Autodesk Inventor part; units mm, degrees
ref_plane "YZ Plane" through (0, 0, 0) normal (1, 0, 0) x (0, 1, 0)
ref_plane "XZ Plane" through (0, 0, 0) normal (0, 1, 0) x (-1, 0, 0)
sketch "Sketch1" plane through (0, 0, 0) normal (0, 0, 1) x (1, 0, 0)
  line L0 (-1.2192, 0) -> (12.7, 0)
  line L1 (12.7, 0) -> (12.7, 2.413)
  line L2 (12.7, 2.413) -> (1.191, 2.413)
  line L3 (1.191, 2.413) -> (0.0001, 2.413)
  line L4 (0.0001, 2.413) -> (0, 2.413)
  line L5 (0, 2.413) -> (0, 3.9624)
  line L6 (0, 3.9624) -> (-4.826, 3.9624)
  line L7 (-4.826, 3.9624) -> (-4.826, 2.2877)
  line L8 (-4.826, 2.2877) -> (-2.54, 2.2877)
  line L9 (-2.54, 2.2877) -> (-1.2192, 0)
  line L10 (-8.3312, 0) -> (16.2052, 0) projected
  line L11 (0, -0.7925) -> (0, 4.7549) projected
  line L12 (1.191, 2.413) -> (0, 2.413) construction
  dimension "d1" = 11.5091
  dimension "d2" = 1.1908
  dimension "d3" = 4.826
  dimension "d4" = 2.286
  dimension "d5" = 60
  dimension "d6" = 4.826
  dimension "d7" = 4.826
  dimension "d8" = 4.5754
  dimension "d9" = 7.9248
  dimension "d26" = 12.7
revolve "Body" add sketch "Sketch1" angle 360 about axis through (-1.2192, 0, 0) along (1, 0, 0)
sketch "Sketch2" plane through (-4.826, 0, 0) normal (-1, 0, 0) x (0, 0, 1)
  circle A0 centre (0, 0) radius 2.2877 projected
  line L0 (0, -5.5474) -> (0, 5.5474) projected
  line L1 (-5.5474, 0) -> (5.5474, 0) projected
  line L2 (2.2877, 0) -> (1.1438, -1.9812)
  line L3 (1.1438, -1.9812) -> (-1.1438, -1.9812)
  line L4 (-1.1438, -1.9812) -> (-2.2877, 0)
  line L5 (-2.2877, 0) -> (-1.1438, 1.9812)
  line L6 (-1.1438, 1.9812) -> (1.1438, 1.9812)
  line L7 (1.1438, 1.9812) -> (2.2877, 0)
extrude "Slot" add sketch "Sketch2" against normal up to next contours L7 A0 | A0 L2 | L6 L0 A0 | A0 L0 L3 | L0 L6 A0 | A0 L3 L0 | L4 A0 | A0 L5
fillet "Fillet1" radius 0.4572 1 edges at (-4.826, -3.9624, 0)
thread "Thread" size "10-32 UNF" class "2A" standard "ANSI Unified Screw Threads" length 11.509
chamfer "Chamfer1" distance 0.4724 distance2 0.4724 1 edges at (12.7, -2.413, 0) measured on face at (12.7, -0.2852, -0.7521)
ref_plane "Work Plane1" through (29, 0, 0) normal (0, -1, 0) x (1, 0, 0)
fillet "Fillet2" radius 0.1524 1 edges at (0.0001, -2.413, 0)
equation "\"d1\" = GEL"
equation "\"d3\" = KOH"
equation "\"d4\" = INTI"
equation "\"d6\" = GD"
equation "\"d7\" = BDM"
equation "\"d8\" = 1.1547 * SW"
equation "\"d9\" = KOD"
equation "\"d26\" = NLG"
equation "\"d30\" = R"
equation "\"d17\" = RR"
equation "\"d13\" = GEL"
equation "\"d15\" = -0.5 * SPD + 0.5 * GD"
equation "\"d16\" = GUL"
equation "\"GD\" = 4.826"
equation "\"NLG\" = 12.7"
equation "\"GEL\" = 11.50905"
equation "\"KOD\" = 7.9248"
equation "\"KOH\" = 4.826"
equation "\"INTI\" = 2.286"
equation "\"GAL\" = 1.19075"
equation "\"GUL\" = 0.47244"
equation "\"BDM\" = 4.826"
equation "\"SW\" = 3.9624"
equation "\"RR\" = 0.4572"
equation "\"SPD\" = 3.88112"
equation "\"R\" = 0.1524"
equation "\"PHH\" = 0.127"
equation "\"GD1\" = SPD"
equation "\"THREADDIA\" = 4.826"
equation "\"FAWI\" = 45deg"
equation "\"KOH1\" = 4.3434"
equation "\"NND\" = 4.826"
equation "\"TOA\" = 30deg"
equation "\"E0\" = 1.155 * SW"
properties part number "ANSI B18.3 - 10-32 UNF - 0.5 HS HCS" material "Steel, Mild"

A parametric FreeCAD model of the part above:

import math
import FreeCAD as App
import Part
import Sketcher

V = App.Vector
Q = App.Units.Quantity


def edges_at(feature, points):
    """Names of the edges that pass closest to the given points."""
    edges = feature.Shape.Edges
    near = lambda p: min(range(len(edges)), key=lambda i: edges[i].distToShape(Part.Vertex(*p))[0])
    return sorted({f"Edge{near(p) + 1}" for p in points})


def add_polygon(sketch, points):
    """Adds a closed chain of lines whose ends are joined by coincident constraints."""
    first, n = sketch.GeometryCount, len(points)
    for a, b in zip(points, points[1:] + points[:1]):
        sketch.addGeometry(Part.LineSegment(App.Vector(*a, 0), App.Vector(*b, 0)), False)
    for i in range(n):
        sketch.addConstraint(Sketcher.Constraint("Coincident", first + i, 2, first + (i + 1) % n, 1))

doc = App.newDocument("Part")
params = doc.addObject("Spreadsheet::Sheet", "Params")
for row, (alias, value) in enumerate([
    ("sketch1_width", "0.5 in"),
    ("sketch1_width2", "0.19 in"),
    ("sketch1_width3", "0.09 in"),
    ("sketch1_width4", "0.548 in"),
    ("sketch1_height", "0.095 in"),
    ("revolution_angle", "360 deg"),
    ("pad1_length", "2.463 mm"),
    ("fillet_radius", "0.018 in"),
    ("chamfer_size", "0.0185984 in"),
    ("chamfer_size2", "0.0185984 in"),
    ("fillet2_radius", "0.006 in"),
], start=1):
    params.set(f"A{row}", alias)
    params.set(f"B{row}", "=" + value)
    params.setAlias(f"B{row}", alias)

body = doc.addObject("PartDesign::Body", "Body")

sketch1 = body.newObject("Sketcher::SketchObject", "Sketch")
sketch1.AttachmentSupport = (doc.getObject("XY_Plane"), [""])
sketch1.MapMode = "FlatFace"
add_polygon(sketch1, [(-2.5, 2.3), (-1.2, 0), (12.7, 0), (12.7, 2.4), (0, 2.4), (0, 4), (-4.8, 4), (-4.8, 2.3)])
sketch1.addConstraint([
    Sketcher.Constraint("Horizontal", 1),
    Sketcher.Constraint("Vertical", 2),
    Sketcher.Constraint("Horizontal", 3),
    Sketcher.Constraint("Vertical", 4),
    Sketcher.Constraint("Horizontal", 5),
    Sketcher.Constraint("Vertical", 6),
    Sketcher.Constraint("Horizontal", 7),
    Sketcher.Constraint("PointOnObject", 0, 2, -1),
    Sketcher.Constraint("PointOnObject", 3, 2, -2),
    Sketcher.Constraint("DistanceX", 3, 2, 3, 1, Q("0.5 in")),
    Sketcher.Constraint("Angle", 0, Q("-60 deg")),
    Sketcher.Constraint("DistanceX", 5, 2, 5, 1, Q("0.19 in")),
    Sketcher.Constraint("DistanceX", 7, 1, 7, 2, Q("0.09 in")),
    Sketcher.Constraint("DistanceX", 1, 1, 1, 2, Q("0.548 in")),
    Sketcher.Constraint("DistanceY", 2, 1, 2, 2, Q("0.095 in")),
    Sketcher.Constraint("DistanceY", 4, 1, 4, 2, Q("0.061 in")),
])
sketch1.setExpression("Constraints[17]", "Params.sketch1_width")
sketch1.setExpression("Constraints[19]", "Params.sketch1_width2")
sketch1.setExpression("Constraints[20]", "Params.sketch1_width3")
sketch1.setExpression("Constraints[21]", "Params.sketch1_width4")
sketch1.setExpression("Constraints[22]", "Params.sketch1_height")
revolution = body.newObject("PartDesign::Revolution", "Revolution")
revolution.Profile = sketch1
revolution.ReferenceAxis = (sketch1, ["H_Axis"])
revolution.setExpression("Angle", "Params.revolution_angle")

sketch2 = body.newObject("Sketcher::SketchObject", "Sketch001")
sketch2.AttachmentSupport = (doc.getObject("YZ_Plane"), [""])
sketch2.MapMode = "FlatFace"
sketch2.AttachmentOffset = App.Placement(V(0, 0, -0.19 * 25.4), App.Rotation())
sketch2.addGeometry([
    Part.LineSegment(V(2, 1.1, 0), V(0, 2.3, 0)),
    Part.ArcOfCircle(Part.Circle(V(0, 0, 0), V(0, 0, 1), 2.3), math.radians(30), math.radians(90)),
    Part.ArcOfCircle(Part.Circle(V(0, 0, 0), V(0, 0, 1), 2.3), math.radians(90), math.radians(150)),
    Part.LineSegment(V(0, 2.3, 0), V(-2, 1.1, 0)),
    Part.ArcOfCircle(Part.Circle(V(0, 0, 0), V(0, 0, 1), 2.3), math.radians(-30), math.radians(30)),
    Part.LineSegment(V(2, 1.1, 0), V(2, -1.1, 0)),
    Part.LineSegment(V(-2, 1.1, 0), V(-2, -1.1, 0)),
    Part.ArcOfCircle(Part.Circle(V(0, 0, 0), V(0, 0, 1), 2.3), math.radians(150), math.radians(210)),
    Part.LineSegment(V(-2, -1.1, 0), V(0, -2.3, 0)),
    Part.ArcOfCircle(Part.Circle(V(0, 0, 0), V(0, 0, 1), 2.3), math.radians(-150), math.radians(-90)),
    Part.ArcOfCircle(Part.Circle(V(0, 0, 0), V(0, 0, 1), 2.3), math.radians(-90), math.radians(-30)),
    Part.LineSegment(V(0, -2.3, 0), V(2, -1.1, 0)),
], False)
sketch2.addConstraint([
    Sketcher.Constraint("Coincident", 0, 1, 1, 1),
    Sketcher.Constraint("Coincident", 1, 2, 0, 2),
    Sketcher.Constraint("Coincident", 2, 1, 3, 1),
    Sketcher.Constraint("Coincident", 3, 2, 2, 2),
    Sketcher.Constraint("Coincident", 4, 1, 5, 2),
    Sketcher.Constraint("Coincident", 5, 1, 4, 2),
    Sketcher.Constraint("Coincident", 6, 1, 7, 1),
    Sketcher.Constraint("Coincident", 7, 2, 6, 2),
    Sketcher.Constraint("Coincident", 8, 1, 9, 1),
    Sketcher.Constraint("Coincident", 9, 2, 8, 2),
    Sketcher.Constraint("Coincident", 10, 1, 11, 1),
    Sketcher.Constraint("Coincident", 11, 2, 10, 2),
    Sketcher.Constraint("Vertical", 5),
    Sketcher.Constraint("Vertical", 6),
    Sketcher.Constraint("Coincident", 1, 3, -1, 1),
    Sketcher.Constraint("Coincident", 2, 3, -1, 1),
    Sketcher.Constraint("Coincident", 4, 3, -1, 1),
    Sketcher.Constraint("Coincident", 7, 3, -1, 1),
    Sketcher.Constraint("Coincident", 9, 3, -1, 1),
    Sketcher.Constraint("Coincident", 10, 3, -1, 1),
    Sketcher.Constraint("Coincident", 2, 1, 1, 2),
    Sketcher.Constraint("Coincident", 5, 1, 0, 1),
    Sketcher.Constraint("Coincident", 6, 1, 3, 2),
    Sketcher.Constraint("Coincident", 8, 1, 7, 2),
    Sketcher.Constraint("Coincident", 10, 1, 9, 2),
    Sketcher.Constraint("PointOnObject", 1, 2, -2),
    Sketcher.Constraint("PointOnObject", 9, 2, -2),
    Sketcher.Constraint("Parallel", 0, 8),
    Sketcher.Constraint("Parallel", 3, 11),
    Sketcher.Constraint("Angle", 0, Q("149.9988 deg")),
    Sketcher.Constraint("Radius", 1, Q("2.2877 mm")),
])
pad1 = body.newObject("PartDesign::Pad", "Pad")
pad1.Profile = sketch2
pad1.setExpression("Length", "Params.pad1_length")
doc.recompute()

fillet = body.newObject("PartDesign::Fillet", "Fillet")
fillet.Base = (pad1, edges_at(pad1, [(-4.826, -3.962, 0)]))
fillet.setExpression("Radius", "Params.fillet_radius")
doc.recompute()

chamfer = body.newObject("PartDesign::Chamfer", "Chamfer")
chamfer.Base = (fillet, edges_at(fillet, [(12.7, -2.413, 0)]))
chamfer.ChamferType = "Two distances"
chamfer.setExpression("Size", "Params.chamfer_size")
chamfer.setExpression("Size2", "Params.chamfer_size2")
doc.recompute()

fillet2 = body.newObject("PartDesign::Fillet", "Fillet001")
fillet2.Base = (chamfer, edges_at(chamfer, [(0, -2.413, 0)]))
fillet2.setExpression("Radius", "Params.fillet2_radius")

doc.recompute()
